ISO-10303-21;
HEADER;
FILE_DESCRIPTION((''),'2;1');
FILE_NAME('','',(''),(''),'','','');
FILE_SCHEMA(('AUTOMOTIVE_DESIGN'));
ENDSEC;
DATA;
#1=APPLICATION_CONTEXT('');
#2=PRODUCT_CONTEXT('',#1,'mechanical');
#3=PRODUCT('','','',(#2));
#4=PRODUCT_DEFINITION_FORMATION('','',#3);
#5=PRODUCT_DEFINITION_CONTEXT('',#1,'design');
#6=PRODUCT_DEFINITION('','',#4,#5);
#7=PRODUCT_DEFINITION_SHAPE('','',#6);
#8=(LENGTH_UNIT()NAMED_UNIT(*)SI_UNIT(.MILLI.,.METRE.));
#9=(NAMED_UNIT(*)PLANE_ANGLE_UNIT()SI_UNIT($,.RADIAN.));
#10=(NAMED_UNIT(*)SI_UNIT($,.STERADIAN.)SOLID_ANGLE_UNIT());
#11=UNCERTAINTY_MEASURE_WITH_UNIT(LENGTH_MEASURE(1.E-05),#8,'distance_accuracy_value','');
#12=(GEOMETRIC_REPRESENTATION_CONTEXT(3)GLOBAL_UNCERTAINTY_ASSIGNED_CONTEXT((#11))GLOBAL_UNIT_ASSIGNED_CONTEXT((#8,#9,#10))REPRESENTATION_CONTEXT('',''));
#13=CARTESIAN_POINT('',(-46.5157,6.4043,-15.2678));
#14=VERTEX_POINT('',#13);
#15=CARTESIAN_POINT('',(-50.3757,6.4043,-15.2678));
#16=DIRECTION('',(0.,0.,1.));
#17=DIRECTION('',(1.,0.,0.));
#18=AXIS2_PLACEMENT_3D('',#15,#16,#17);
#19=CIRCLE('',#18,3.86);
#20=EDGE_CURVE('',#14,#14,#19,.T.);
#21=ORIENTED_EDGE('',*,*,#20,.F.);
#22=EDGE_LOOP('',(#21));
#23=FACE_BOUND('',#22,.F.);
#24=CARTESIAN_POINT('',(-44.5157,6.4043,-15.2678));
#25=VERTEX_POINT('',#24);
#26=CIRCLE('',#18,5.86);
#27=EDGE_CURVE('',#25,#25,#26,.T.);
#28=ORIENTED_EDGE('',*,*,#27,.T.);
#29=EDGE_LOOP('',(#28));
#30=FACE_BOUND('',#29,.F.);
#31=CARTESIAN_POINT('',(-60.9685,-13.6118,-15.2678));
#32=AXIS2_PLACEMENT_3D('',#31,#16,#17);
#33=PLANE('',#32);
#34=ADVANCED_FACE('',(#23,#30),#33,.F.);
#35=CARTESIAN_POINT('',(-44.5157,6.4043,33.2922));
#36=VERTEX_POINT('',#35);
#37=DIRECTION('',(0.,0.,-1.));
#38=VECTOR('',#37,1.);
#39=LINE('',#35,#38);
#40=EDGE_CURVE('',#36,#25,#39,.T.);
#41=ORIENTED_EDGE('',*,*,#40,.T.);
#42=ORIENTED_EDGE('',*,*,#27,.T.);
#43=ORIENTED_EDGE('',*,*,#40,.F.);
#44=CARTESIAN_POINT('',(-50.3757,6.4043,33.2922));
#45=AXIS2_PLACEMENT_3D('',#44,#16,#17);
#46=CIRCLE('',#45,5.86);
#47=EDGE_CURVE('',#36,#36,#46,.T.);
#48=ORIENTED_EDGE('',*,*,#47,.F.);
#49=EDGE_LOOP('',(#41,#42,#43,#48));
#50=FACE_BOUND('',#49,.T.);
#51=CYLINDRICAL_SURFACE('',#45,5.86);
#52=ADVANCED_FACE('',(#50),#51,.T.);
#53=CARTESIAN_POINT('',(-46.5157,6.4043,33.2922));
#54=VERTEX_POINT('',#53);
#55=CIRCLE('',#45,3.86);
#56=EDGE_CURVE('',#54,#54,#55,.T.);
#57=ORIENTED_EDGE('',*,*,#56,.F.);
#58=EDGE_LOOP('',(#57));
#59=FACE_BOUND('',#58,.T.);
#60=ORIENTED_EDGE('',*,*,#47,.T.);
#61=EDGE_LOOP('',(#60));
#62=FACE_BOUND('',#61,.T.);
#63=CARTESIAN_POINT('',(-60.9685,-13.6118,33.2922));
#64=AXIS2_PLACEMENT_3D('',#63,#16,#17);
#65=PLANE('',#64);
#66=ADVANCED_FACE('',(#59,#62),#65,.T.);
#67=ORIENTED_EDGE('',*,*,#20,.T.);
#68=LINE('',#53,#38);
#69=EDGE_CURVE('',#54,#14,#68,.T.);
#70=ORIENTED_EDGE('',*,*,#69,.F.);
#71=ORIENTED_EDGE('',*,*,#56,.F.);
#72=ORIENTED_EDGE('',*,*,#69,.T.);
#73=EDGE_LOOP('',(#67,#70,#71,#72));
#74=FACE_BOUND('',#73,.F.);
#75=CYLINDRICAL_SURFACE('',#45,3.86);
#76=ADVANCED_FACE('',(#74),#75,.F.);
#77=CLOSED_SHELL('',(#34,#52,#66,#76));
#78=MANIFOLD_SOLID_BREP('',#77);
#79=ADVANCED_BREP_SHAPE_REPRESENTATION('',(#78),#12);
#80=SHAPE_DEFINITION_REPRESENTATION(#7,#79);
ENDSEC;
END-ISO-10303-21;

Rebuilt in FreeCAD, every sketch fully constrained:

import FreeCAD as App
import Part
import Sketcher
Q = App.Units.Quantity

doc = App.newDocument("Part")
body = doc.addObject("PartDesign::Body", "Body")

# Sketch on XY plane
sketch1 = body.newObject("Sketcher::SketchObject", "Sketch")
sketch1.AttachmentSupport = (doc.getObject("XY_Plane"), [""])
sketch1.MapMode = "FlatFace"
sketch1.AttachmentOffset = App.Placement(App.Vector(0, 0, 33.2922), App.Rotation())
sketch1.addGeometry(Part.Circle(App.Vector(-50.3757, 6.4043, 0), App.Vector(0, 0, 1), 5.86), False)
sketch1.addGeometry(Part.Circle(App.Vector(-50.3757, 6.4043, 0), App.Vector(0, 0, 1), 3.86), False)
sketch1.addConstraint(Sketcher.Constraint("Coincident", 1, 3, 0, 3))
sketch1.addConstraint(Sketcher.Constraint("Diameter", 0, Q("11.72 mm")))
sketch1.addConstraint(Sketcher.Constraint("Diameter", 1, Q("7.72 mm")))
sketch1.addConstraint(Sketcher.Constraint("DistanceX", 0, 3, -1, 1, Q("50.3757 mm")))
sketch1.addConstraint(Sketcher.Constraint("DistanceY", -1, 1, 0, 3, Q("6.4043 mm")))
pad1 = body.newObject("PartDesign::Pad", "Pad")
pad1.Profile = sketch1
pad1.Length = 48.56
pad1.Reversed = True

doc.recompute()
